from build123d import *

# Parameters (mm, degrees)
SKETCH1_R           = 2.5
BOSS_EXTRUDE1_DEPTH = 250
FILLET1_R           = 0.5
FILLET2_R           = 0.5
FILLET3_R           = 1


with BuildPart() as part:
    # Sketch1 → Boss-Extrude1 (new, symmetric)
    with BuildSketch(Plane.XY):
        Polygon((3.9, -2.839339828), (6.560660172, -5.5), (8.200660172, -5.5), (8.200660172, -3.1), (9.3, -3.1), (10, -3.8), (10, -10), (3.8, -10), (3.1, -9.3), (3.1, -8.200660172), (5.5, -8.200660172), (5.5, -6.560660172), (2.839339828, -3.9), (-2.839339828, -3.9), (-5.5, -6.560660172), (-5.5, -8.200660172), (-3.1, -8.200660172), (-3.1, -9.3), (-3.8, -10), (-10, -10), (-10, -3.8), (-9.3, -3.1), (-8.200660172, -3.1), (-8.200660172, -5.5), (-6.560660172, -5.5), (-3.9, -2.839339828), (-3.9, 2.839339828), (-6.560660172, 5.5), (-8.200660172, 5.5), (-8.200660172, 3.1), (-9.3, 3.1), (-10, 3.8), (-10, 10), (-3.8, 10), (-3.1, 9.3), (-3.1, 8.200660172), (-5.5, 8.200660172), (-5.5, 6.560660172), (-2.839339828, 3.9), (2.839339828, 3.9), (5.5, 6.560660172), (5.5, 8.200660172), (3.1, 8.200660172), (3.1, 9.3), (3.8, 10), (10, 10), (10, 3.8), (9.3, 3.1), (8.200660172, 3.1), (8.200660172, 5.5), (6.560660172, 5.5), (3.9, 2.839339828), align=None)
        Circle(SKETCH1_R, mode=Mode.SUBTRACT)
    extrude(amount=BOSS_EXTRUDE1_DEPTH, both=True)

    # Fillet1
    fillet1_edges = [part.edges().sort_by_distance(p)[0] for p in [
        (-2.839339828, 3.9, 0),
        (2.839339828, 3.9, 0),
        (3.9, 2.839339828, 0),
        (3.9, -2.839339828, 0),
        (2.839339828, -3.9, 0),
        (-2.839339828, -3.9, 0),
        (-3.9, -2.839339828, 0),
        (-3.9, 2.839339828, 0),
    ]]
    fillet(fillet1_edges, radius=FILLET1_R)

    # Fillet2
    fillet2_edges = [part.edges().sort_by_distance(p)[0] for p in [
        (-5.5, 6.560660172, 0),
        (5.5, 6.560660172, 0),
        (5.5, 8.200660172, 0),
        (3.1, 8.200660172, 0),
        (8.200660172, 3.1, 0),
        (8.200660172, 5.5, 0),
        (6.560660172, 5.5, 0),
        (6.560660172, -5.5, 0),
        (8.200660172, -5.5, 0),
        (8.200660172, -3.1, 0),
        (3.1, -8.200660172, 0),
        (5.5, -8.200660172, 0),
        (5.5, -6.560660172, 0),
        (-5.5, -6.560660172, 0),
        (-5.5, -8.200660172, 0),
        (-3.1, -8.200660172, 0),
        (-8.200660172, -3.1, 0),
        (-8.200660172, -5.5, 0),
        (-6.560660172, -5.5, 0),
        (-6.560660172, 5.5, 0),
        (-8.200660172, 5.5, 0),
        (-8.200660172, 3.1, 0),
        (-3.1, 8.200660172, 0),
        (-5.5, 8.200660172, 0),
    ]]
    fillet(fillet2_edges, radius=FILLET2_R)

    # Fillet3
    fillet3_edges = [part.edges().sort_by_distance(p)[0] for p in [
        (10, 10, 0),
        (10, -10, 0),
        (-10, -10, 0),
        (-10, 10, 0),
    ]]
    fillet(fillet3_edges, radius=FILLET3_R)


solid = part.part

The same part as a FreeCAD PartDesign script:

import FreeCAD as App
import Part
import Sketcher
from FreeCAD import Vector
Q = App.Units.Quantity


def edges_at(feature, points):
    """Names of the edges that pass closest to the given points."""
    edges = feature.Shape.Edges
    near = lambda p: min(range(len(edges)), key=lambda i: edges[i].distToShape(Part.Vertex(*p))[0])
    return sorted({f"Edge{near(p) + 1}" for p in points})

doc = App.newDocument("Part")
body = doc.addObject("PartDesign::Body", "Body")

sketch1 = body.newObject("Sketcher::SketchObject", "Sketch")
sketch1.AttachmentSupport = (doc.getObject("XY_Plane"), [""])
sketch1.MapMode = "FlatFace"
sketch1.addGeometry([
    Part.LineSegment(Vector(6.56066, -5.5, 0), Vector(3.9, -2.83934, 0)),
    Part.LineSegment(Vector(3.9, -2.83934, 0), Vector(3.9, 2.83934, 0)),
    Part.LineSegment(Vector(3.9, 2.83934, 0), Vector(6.56066, 5.5, 0)),
    Part.LineSegment(Vector(6.56066, 5.5, 0), Vector(8.20066, 5.5, 0)),
    Part.LineSegment(Vector(8.20066, 5.5, 0), Vector(8.20066, 3.1, 0)),
    Part.LineSegment(Vector(8.20066, 3.1, 0), Vector(9.3, 3.1, 0)),
    Part.LineSegment(Vector(9.3, 3.1, 0), Vector(10, 3.8, 0)),
    Part.LineSegment(Vector(10, 3.8, 0), Vector(10, 10, 0)),
    Part.LineSegment(Vector(10, 10, 0), Vector(3.8, 10, 0)),
    Part.LineSegment(Vector(3.8, 10, 0), Vector(3.1, 9.3, 0)),
    Part.LineSegment(Vector(3.1, 9.3, 0), Vector(3.1, 8.20066, 0)),
    Part.LineSegment(Vector(3.1, 8.20066, 0), Vector(5.5, 8.20066, 0)),
    Part.LineSegment(Vector(5.5, 8.20066, 0), Vector(5.5, 6.56066, 0)),
    Part.LineSegment(Vector(5.5, 6.56066, 0), Vector(2.83934, 3.9, 0)),
    Part.LineSegment(Vector(2.83934, 3.9, 0), Vector(-2.83934, 3.9, 0)),
    Part.LineSegment(Vector(-2.83934, 3.9, 0), Vector(-5.5, 6.56066, 0)),
    Part.LineSegment(Vector(-5.5, 6.56066, 0), Vector(-5.5, 8.20066, 0)),
    Part.LineSegment(Vector(-5.5, 8.20066, 0), Vector(-3.1, 8.20066, 0)),
    Part.LineSegment(Vector(-3.1, 8.20066, 0), Vector(-3.1, 9.3, 0)),
    Part.LineSegment(Vector(-3.1, 9.3, 0), Vector(-3.8, 10, 0)),
    Part.LineSegment(Vector(-3.8, 10, 0), Vector(-10, 10, 0)),
    Part.LineSegment(Vector(-10, 10, 0), Vector(-10, 3.8, 0)),
    Part.LineSegment(Vector(-10, 3.8, 0), Vector(-9.3, 3.1, 0)),
    Part.LineSegment(Vector(-9.3, 3.1, 0), Vector(-8.20066, 3.1, 0)),
    Part.LineSegment(Vector(-8.20066, 3.1, 0), Vector(-8.20066, 5.5, 0)),
    Part.LineSegment(Vector(-8.20066, 5.5, 0), Vector(-6.56066, 5.5, 0)),
    Part.LineSegment(Vector(-6.56066, 5.5, 0), Vector(-3.9, 2.83934, 0)),
    Part.LineSegment(Vector(-3.9, 2.83934, 0), Vector(-3.9, -2.83934, 0)),
    Part.LineSegment(Vector(-3.9, -2.83934, 0), Vector(-6.56066, -5.5, 0)),
    Part.LineSegment(Vector(-6.56066, -5.5, 0), Vector(-8.20066, -5.5, 0)),
    Part.LineSegment(Vector(-8.20066, -5.5, 0), Vector(-8.20066, -3.1, 0)),
    Part.LineSegment(Vector(-8.20066, -3.1, 0), Vector(-9.3, -3.1, 0)),
    Part.LineSegment(Vector(-9.3, -3.1, 0), Vector(-10, -3.8, 0)),
    Part.LineSegment(Vector(-10, -3.8, 0), Vector(-10, -10, 0)),
    Part.LineSegment(Vector(-10, -10, 0), Vector(-3.8, -10, 0)),
    Part.LineSegment(Vector(-3.8, -10, 0), Vector(-3.1, -9.3, 0)),
    Part.LineSegment(Vector(-3.1, -9.3, 0), Vector(-3.1, -8.20066, 0)),
    Part.LineSegment(Vector(-3.1, -8.20066, 0), Vector(-5.5, -8.20066, 0)),
    Part.LineSegment(Vector(-5.5, -8.20066, 0), Vector(-5.5, -6.56066, 0)),
    Part.LineSegment(Vector(-5.5, -6.56066, 0), Vector(-2.83934, -3.9, 0)),
    Part.LineSegment(Vector(-2.83934, -3.9, 0), Vector(2.83934, -3.9, 0)),
    Part.LineSegment(Vector(2.83934, -3.9, 0), Vector(5.5, -6.56066, 0)),
    Part.LineSegment(Vector(5.5, -6.56066, 0), Vector(5.5, -8.20066, 0)),
    Part.LineSegment(Vector(5.5, -8.20066, 0), Vector(3.1, -8.20066, 0)),
    Part.LineSegment(Vector(3.1, -8.20066, 0), Vector(3.1, -9.3, 0)),
    Part.LineSegment(Vector(3.1, -9.3, 0), Vector(3.8, -10, 0)),
    Part.LineSegment(Vector(3.8, -10, 0), Vector(10, -10, 0)),
    Part.LineSegment(Vector(10, -10, 0), Vector(10, -3.8, 0)),
    Part.LineSegment(Vector(10, -3.8, 0), Vector(9.3, -3.1, 0)),
    Part.LineSegment(Vector(9.3, -3.1, 0), Vector(8.20066, -3.1, 0)),
    Part.LineSegment(Vector(8.20066, -3.1, 0), Vector(8.20066, -5.5, 0)),
    Part.LineSegment(Vector(8.20066, -5.5, 0), Vector(6.56066, -5.5, 0)),
    Part.Circle(Vector(0, 0, 0), Vector(0, 0, 1), 2.5),
], False)
sketch1.addConstraint([
    Sketcher.Constraint("Coincident", 0, 2, 1, 1),
    Sketcher.Constraint("Coincident", 1, 2, 2, 1),
    Sketcher.Constraint("Coincident", 2, 2, 3, 1),
    Sketcher.Constraint("Coincident", 3, 2, 4, 1),
    Sketcher.Constraint("Coincident", 4, 2, 5, 1),
    Sketcher.Constraint("Coincident", 5, 2, 6, 1),
    Sketcher.Constraint("Coincident", 6, 2, 7, 1),
    Sketcher.Constraint("Coincident", 7, 2, 8, 1),
    Sketcher.Constraint("Coincident", 8, 2, 9, 1),
    Sketcher.Constraint("Coincident", 9, 2, 10, 1),
    Sketcher.Constraint("Coincident", 10, 2, 11, 1),
    Sketcher.Constraint("Coincident", 11, 2, 12, 1),
    Sketcher.Constraint("Coincident", 12, 2, 13, 1),
    Sketcher.Constraint("Coincident", 13, 2, 14, 1),
    Sketcher.Constraint("Coincident", 14, 2, 15, 1),
    Sketcher.Constraint("Coincident", 15, 2, 16, 1),
    Sketcher.Constraint("Coincident", 16, 2, 17, 1),
    Sketcher.Constraint("Coincident", 17, 2, 18, 1),
    Sketcher.Constraint("Coincident", 18, 2, 19, 1),
    Sketcher.Constraint("Coincident", 19, 2, 20, 1),
    Sketcher.Constraint("Coincident", 20, 2, 21, 1),
    Sketcher.Constraint("Coincident", 21, 2, 22, 1),
    Sketcher.Constraint("Coincident", 22, 2, 23, 1),
    Sketcher.Constraint("Coincident", 23, 2, 24, 1),
    Sketcher.Constraint("Coincident", 24, 2, 25, 1),
    Sketcher.Constraint("Coincident", 25, 2, 26, 1),
    Sketcher.Constraint("Coincident", 26, 2, 27, 1),
    Sketcher.Constraint("Coincident", 27, 2, 28, 1),
    Sketcher.Constraint("Coincident", 28, 2, 29, 1),
    Sketcher.Constraint("Coincident", 29, 2, 30, 1),
    Sketcher.Constraint("Coincident", 30, 2, 31, 1),
    Sketcher.Constraint("Coincident", 31, 2, 32, 1),
    Sketcher.Constraint("Coincident", 32, 2, 33, 1),
    Sketcher.Constraint("Coincident", 33, 2, 34, 1),
    Sketcher.Constraint("Coincident", 34, 2, 35, 1),
    Sketcher.Constraint("Coincident", 35, 2, 36, 1),
    Sketcher.Constraint("Coincident", 36, 2, 37, 1),
    Sketcher.Constraint("Coincident", 37, 2, 38, 1),
    Sketcher.Constraint("Coincident", 38, 2, 39, 1),
    Sketcher.Constraint("Coincident", 39, 2, 40, 1),
    Sketcher.Constraint("Coincident", 40, 2, 41, 1),
    Sketcher.Constraint("Coincident", 41, 2, 42, 1),
    Sketcher.Constraint("Coincident", 42, 2, 43, 1),
    Sketcher.Constraint("Coincident", 43, 2, 44, 1),
    Sketcher.Constraint("Coincident", 44, 2, 45, 1),
    Sketcher.Constraint("Coincident", 45, 2, 46, 1),
    Sketcher.Constraint("Coincident", 46, 2, 47, 1),
    Sketcher.Constraint("Coincident", 47, 2, 48, 1),
    Sketcher.Constraint("Coincident", 48, 2, 49, 1),
    Sketcher.Constraint("Coincident", 49, 2, 50, 1),
    Sketcher.Constraint("Coincident", 50, 2, 51, 1),
    Sketcher.Constraint("Coincident", 51, 2, 0, 1),
    Sketcher.Constraint("Vertical", 1),
    Sketcher.Constraint("Horizontal", 3),
    Sketcher.Constraint("Vertical", 4),
    Sketcher.Constraint("Horizontal", 5),
    Sketcher.Constraint("Vertical", 7),
    Sketcher.Constraint("Horizontal", 8),
    Sketcher.Constraint("Vertical", 10),
    Sketcher.Constraint("Horizontal", 11),
    Sketcher.Constraint("Vertical", 12),
    Sketcher.Constraint("Horizontal", 14),
    Sketcher.Constraint("Vertical", 16),
    Sketcher.Constraint("Horizontal", 17),
    Sketcher.Constraint("Vertical", 18),
    Sketcher.Constraint("Horizontal", 20),
    Sketcher.Constraint("Vertical", 21),
    Sketcher.Constraint("Horizontal", 23),
    Sketcher.Constraint("Vertical", 24),
    Sketcher.Constraint("Horizontal", 25),
    Sketcher.Constraint("Vertical", 27),
    Sketcher.Constraint("Horizontal", 29),
    Sketcher.Constraint("Vertical", 30),
    Sketcher.Constraint("Horizontal", 31),
    Sketcher.Constraint("Vertical", 33),
    Sketcher.Constraint("Horizontal", 34),
    Sketcher.Constraint("Vertical", 36),
    Sketcher.Constraint("Horizontal", 37),
    Sketcher.Constraint("Vertical", 38),
    Sketcher.Constraint("Horizontal", 40),
    Sketcher.Constraint("Vertical", 42),
    Sketcher.Constraint("Horizontal", 43),
    Sketcher.Constraint("Vertical", 44),
    Sketcher.Constraint("Horizontal", 46),
    Sketcher.Constraint("Vertical", 47),
    Sketcher.Constraint("Horizontal", 49),
    Sketcher.Constraint("Vertical", 50),
    Sketcher.Constraint("Horizontal", 51),
    Sketcher.Constraint("Coincident", 52, 3, -1, 1),
    Sketcher.Constraint("Symmetric", 0, 2, 26, 2, -1, 1),
    Sketcher.Constraint("Symmetric", 2, 2, 28, 2, -1, 1),
    Sketcher.Constraint("Symmetric", 4, 2, 30, 2, -1, 1),
    Sketcher.Constraint("Symmetric", 6, 2, 32, 2, -1, 1),
    Sketcher.Constraint("Symmetric", 8, 2, 34, 2, -1, 1),
    Sketcher.Constraint("Symmetric", 9, 2, 35, 2, -1, 1),
    Sketcher.Constraint("Symmetric", 11, 2, 37, 2, -1, 1),
    Sketcher.Constraint("Symmetric", 13, 2, 39, 2, -1, 1),
    Sketcher.Constraint("Symmetric", 15, 2, 41, 2, -1, 1),
    Sketcher.Constraint("Symmetric", 17, 2, 43, 2, -1, 1),
    Sketcher.Constraint("Symmetric", 19, 2, 45, 2, -1, 1),
    Sketcher.Constraint("Symmetric", 21, 2, 47, 2, -1, 1),
    Sketcher.Constraint("Symmetric", 22, 2, 48, 2, -1, 1),
    Sketcher.Constraint("Symmetric", 24, 2, 50, 2, -1, 1),
    Sketcher.Constraint("Symmetric", 12, 2, 15, 2, -2),
    Sketcher.Constraint("Symmetric", 10, 2, 17, 2, -2),
    Sketcher.Constraint("Symmetric", 8, 2, 19, 2, -2),
    Sketcher.Constraint("Symmetric", 6, 2, 21, 2, -2),
    Sketcher.Constraint("Symmetric", 5, 2, 22, 2, -2),
    Sketcher.Constraint("Symmetric", 3, 2, 24, 2, -2),
    Sketcher.Constraint("Perpendicular", 0, 2),
    Sketcher.Constraint("Parallel", 2, 6),
    Sketcher.Constraint("Parallel", 6, 9),
    Sketcher.Constraint("Parallel", 9, 13),
    Sketcher.Constraint("Perpendicular", 13, 15),
    Sketcher.Constraint("Parallel", 15, 19),
    Sketcher.Constraint("Parallel", 19, 22),
    Sketcher.Constraint("Parallel", 22, 26),
    Sketcher.Constraint("Perpendicular", 26, 28),
    Sketcher.Constraint("Parallel", 28, 32),
    Sketcher.Constraint("Parallel", 35, 39),
    Sketcher.Constraint("Perpendicular", 39, 41),
    Sketcher.Constraint("Parallel", 41, 45),
    Sketcher.Constraint("Horizontal", 1, 2, 26, 2),
    Sketcher.Constraint("Equal", 40, 1),
    Sketcher.Constraint("Equal", 43, 4),
    Sketcher.Constraint("Equal", 46, 7),
    Sketcher.Constraint("Equal", 49, 10),
    Sketcher.Constraint("Equal", 51, 12),
    Sketcher.Constraint("Equal", 6, 9),
    Sketcher.Constraint("Equal", 2, 13),
    Sketcher.Constraint("Diameter", 52, Q("5 mm")),
    Sketcher.Constraint("DistanceX", 8, 2, 8, 1, Q("6.2 mm")),
    Sketcher.Constraint("DistanceX", 11, 1, 11, 2, Q("2.4 mm")),
    Sketcher.Constraint("DistanceX", -1, 1, 6, 2, Q("10 mm")),
    Sketcher.Constraint("DistanceX", 3, 1, 3, 2, Q("1.64 mm")),
    Sketcher.Constraint("DistanceX", -1, 1, 0, 2, Q("3.9 mm")),
    Sketcher.Constraint("DistanceY", -1, 1, 2, 2, Q("5.5 mm")),
    Sketcher.Constraint("DistanceX", 5, 1, 5, 2, Q("1.09934 mm")),
])
pad1 = body.newObject("PartDesign::Pad", "Pad")
pad1.Profile = sketch1
pad1.Length = 500
pad1.Midplane = True
doc.recompute()

fillet = body.newObject("PartDesign::Fillet", "Fillet")
fillet.Base = (pad1, edges_at(pad1, [
    (-2.839, 3.9, 0),
    (2.839, 3.9, 0),
    (3.9, 2.839, 0),
    (3.9, -2.839, 0),
    (2.839, -3.9, 0),
    (-2.839, -3.9, 0),
    (-3.9, -2.839, 0),
    (-3.9, 2.839, 0),
]))
fillet.Radius = 0.5
doc.recompute()

fillet2 = body.newObject("PartDesign::Fillet", "Fillet001")
fillet2.Base = (fillet, edges_at(fillet, [
    (-5.5, 6.561, 0),
    (5.5, 6.561, 0),
    (5.5, 8.201, 0),
    (3.1, 8.201, 0),
    (8.201, 3.1, 0),
    (8.201, 5.5, 0),
    (6.561, 5.5, 0),
    (6.561, -5.5, 0),
    (8.201, -5.5, 0),
    (8.201, -3.1, 0),
    (3.1, -8.201, 0),
    (5.5, -8.201, 0),
    (5.5, -6.561, 0),
    (-5.5, -6.561, 0),
    (-5.5, -8.201, 0),
    (-3.1, -8.201, 0),
    (-8.201, -3.1, 0),
    (-8.201, -5.5, 0),
    (-6.561, -5.5, 0),
    (-6.561, 5.5, 0),
    (-8.201, 5.5, 0),
    (-8.201, 3.1, 0),
    (-3.1, 8.201, 0),
    (-5.5, 8.201, 0),
]))
fillet2.Radius = 0.5
doc.recompute()

fillet3 = body.newObject("PartDesign::Fillet", "Fillet002")
fillet3.Base = (fillet2, edges_at(fillet2, [
    (10, 10, 0),
    (10, -10, 0),
    (-10, -10, 0),
    (-10, 10, 0),
]))
fillet3.Radius = 1

doc.recompute()
